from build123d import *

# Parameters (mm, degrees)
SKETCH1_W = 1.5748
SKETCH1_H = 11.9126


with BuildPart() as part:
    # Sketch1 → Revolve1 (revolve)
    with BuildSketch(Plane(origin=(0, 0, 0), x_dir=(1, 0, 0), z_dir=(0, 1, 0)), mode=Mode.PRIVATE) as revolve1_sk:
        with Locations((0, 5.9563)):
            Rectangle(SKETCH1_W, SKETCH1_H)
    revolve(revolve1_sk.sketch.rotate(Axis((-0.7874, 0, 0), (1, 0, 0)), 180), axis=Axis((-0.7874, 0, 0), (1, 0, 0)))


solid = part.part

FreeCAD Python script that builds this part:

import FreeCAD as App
import Part
import Sketcher
from FreeCAD import Vector
Q = App.Units.Quantity


def add_polygon(sketch, points):
    """Adds a closed chain of lines whose ends are joined by coincident constraints."""
    first, n = sketch.GeometryCount, len(points)
    for a, b in zip(points, points[1:] + points[:1]):
        sketch.addGeometry(Part.LineSegment(App.Vector(*a, 0), App.Vector(*b, 0)), False)
    for i in range(n):
        sketch.addConstraint(Sketcher.Constraint("Coincident", first + i, 2, first + (i + 1) % n, 1))

doc = App.newDocument("Part")
body = doc.addObject("PartDesign::Body", "Body")

sketch1 = doc.addObject("Sketcher::SketchObject", "Sketch")
body.addObject(sketch1)
sketch1.AttachmentSupport = (doc.XZ_Plane, [""])
sketch1.MapMode = "FlatFace"
add_polygon(sketch1, [(-0.7874, -11.9126), (-0.7874, 0), (0.7874, 0), (0.7874, -11.9126)])
sketch1.addConstraint([
    Sketcher.Constraint("Vertical", 0),
    Sketcher.Constraint("Horizontal", 1),
    Sketcher.Constraint("Vertical", 2),
    Sketcher.Constraint("Horizontal", 3),
    Sketcher.Constraint("Symmetric", 0, 2, 1, 2, -1, 1),
    Sketcher.Constraint("DistanceX", 1, 1, 1, 2, Q("0.062 in")),
    Sketcher.Constraint("DistanceY", 0, 1, 0, 2, Q("0.469 in")),
])
revolution = doc.addObject("PartDesign::Revolution", "Revolution")
body.addObject(revolution)
revolution.Profile = sketch1
revolution.ReferenceAxis = (sketch1, ["H_Axis"])
revolution.Angle = 360

doc.recompute()
